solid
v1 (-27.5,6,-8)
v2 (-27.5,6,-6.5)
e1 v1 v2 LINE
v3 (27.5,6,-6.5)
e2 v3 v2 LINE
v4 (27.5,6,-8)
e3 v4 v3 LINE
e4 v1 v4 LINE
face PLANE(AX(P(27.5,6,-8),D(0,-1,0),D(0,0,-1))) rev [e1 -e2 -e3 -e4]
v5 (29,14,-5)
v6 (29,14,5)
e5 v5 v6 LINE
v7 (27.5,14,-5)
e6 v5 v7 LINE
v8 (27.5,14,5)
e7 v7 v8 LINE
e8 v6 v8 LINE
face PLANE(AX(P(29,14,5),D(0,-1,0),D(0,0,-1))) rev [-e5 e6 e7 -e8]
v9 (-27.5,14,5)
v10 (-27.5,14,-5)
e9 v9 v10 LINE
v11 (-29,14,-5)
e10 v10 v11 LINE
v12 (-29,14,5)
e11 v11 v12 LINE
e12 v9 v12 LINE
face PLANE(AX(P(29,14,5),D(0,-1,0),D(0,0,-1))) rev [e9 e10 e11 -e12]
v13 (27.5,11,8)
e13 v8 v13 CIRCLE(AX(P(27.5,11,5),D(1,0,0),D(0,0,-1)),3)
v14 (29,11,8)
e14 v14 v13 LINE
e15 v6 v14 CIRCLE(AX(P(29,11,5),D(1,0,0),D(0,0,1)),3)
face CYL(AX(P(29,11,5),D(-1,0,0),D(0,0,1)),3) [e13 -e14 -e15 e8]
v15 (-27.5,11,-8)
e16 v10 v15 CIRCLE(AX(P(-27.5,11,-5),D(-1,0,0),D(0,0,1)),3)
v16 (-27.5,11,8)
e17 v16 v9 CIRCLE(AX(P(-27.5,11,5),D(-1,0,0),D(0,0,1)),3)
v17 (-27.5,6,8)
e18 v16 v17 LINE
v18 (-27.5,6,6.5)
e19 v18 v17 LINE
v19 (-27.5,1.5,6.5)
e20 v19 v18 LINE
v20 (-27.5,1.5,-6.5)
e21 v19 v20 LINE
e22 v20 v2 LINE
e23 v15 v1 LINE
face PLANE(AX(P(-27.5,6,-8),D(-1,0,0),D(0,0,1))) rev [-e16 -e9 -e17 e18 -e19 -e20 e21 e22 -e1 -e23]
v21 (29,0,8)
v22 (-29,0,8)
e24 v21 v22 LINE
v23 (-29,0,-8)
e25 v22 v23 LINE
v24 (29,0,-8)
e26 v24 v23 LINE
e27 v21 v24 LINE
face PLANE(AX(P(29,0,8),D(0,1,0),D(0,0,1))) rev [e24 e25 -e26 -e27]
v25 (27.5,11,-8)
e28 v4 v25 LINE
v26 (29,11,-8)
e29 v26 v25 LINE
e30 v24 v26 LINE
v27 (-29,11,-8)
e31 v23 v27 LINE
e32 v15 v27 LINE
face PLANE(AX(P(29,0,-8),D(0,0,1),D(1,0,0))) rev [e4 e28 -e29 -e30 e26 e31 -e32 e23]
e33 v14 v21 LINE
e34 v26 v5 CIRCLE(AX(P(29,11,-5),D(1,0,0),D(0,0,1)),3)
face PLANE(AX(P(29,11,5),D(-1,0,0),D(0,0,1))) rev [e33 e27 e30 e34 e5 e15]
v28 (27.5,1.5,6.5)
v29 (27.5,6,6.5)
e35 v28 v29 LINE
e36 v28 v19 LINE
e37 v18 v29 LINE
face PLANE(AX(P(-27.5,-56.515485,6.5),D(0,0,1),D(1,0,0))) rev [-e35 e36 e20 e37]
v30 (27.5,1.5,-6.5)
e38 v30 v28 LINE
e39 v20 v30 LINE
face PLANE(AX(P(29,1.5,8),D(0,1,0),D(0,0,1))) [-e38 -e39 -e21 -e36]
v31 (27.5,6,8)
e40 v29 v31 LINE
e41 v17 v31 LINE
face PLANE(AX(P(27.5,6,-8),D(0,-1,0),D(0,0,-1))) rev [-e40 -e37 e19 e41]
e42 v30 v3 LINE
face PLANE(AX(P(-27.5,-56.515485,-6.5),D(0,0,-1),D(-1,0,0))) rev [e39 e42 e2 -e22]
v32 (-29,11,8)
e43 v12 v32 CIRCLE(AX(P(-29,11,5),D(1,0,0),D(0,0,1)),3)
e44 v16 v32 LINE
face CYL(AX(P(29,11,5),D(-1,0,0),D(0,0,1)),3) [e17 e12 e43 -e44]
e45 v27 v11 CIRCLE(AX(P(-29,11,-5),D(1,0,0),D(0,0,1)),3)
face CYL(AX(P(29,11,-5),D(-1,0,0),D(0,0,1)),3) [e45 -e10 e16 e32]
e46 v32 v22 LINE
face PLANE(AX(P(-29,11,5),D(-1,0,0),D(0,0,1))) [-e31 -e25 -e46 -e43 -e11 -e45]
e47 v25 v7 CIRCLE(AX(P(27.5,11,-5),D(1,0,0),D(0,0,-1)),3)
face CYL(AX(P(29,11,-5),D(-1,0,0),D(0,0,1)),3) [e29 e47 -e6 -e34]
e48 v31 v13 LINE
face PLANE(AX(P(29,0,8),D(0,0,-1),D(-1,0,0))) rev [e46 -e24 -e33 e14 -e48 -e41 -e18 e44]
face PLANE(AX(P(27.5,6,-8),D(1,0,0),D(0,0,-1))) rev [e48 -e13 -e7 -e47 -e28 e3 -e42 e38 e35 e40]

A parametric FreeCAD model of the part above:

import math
import FreeCAD as App
import Part
import Sketcher
from FreeCAD import Vector

doc = App.newDocument("Part")
params = doc.addObject("Spreadsheet::Sheet", "Params")
for row, (alias, value) in enumerate([
    ("sketch1_radius", "3 mm"),
    ("sketch1_width", "11 mm"),
    ("sketch1_height", "16 mm"),
    ("pad1_length", "58 mm"),
    ("sketch2_width", "55 mm"),
    ("sketch2_height", "16 mm"),
    ("sketch3_width", "55 mm"),
    ("sketch3_height", "13 mm"),
    ("pocket2_length", "4.5 mm"),
], start=1):
    params.set(f"A{row}", alias)
    params.set(f"B{row}", "=" + value)
    params.setAlias(f"B{row}", alias)

body = doc.addObject("PartDesign::Body", "Body")

sketch1 = doc.addObject("Sketcher::SketchObject", "Sketch")
body.addObject(sketch1)
sketch1.AttachmentSupport = (doc.YZ_Plane, [""])
sketch1.MapMode = "FlatFace"
sketch1.addGeometry(Part.LineSegment(Vector(0, 8, 0), Vector(0, -8, 0)), False)
sketch1.addGeometry(Part.LineSegment(Vector(0, -8, 0), Vector(11, -8, 0)), False)
sketch1.addGeometry(Part.ArcOfCircle(Part.Circle(Vector(11, -5, 0), Vector(0, 0, 1), 3), math.radians(-90), math.radians(0)), False)
sketch1.addGeometry(Part.LineSegment(Vector(14, -5, 0), Vector(14, 5, 0)), False)
sketch1.addGeometry(Part.ArcOfCircle(Part.Circle(Vector(11, 5, 0), Vector(0, 0, 1), 3), math.radians(0), math.radians(90)), False)
sketch1.addGeometry(Part.LineSegment(Vector(11, 8, 0), Vector(0, 8, 0)), False)
sketch1.addConstraint(Sketcher.Constraint("Coincident", 0, 2, 1, 1))
sketch1.addConstraint(Sketcher.Constraint("Tangent", 1, 2, 2, 1))
sketch1.addConstraint(Sketcher.Constraint("Tangent", 2, 2, 3, 1))
sketch1.addConstraint(Sketcher.Constraint("Tangent", 3, 2, 4, 1))
sketch1.addConstraint(Sketcher.Constraint("Tangent", 4, 2, 5, 1))
sketch1.addConstraint(Sketcher.Constraint("Coincident", 5, 2, 0, 1))
sketch1.addConstraint(Sketcher.Constraint("Vertical", 0))
sketch1.addConstraint(Sketcher.Constraint("Horizontal", 1))
sketch1.addConstraint(Sketcher.Constraint("Vertical", 3))
sketch1.addConstraint(Sketcher.Constraint("Horizontal", 5))
sketch1.addConstraint(Sketcher.Constraint("Equal", 2, 4))
sketch1.addConstraint(Sketcher.Constraint("Symmetric", 0, 2, 5, 2, -1, 1))
sketch1.addConstraint(Sketcher.Constraint("Radius", 2, 3.0))
sketch1.addConstraint(Sketcher.Constraint("DistanceX", 1, 1, 1, 2, 11.0))
sketch1.addConstraint(Sketcher.Constraint("DistanceY", 0, 2, 0, 1, 16.0))
sketch1.setExpression("Constraints[12]", "Params.sketch1_radius")
sketch1.setExpression("Constraints[13]", "Params.sketch1_width")
sketch1.setExpression("Constraints[14]", "Params.sketch1_height")
pad1 = doc.addObject("PartDesign::Pad", "Pad")
body.addObject(pad1)
pad1.Profile = sketch1
pad1.setExpression("Length", "Params.pad1_length")
pad1.Midplane = True

sketch2 = doc.addObject("Sketcher::SketchObject", "Sketch001")
body.addObject(sketch2)
sketch2.AttachmentSupport = (doc.XY_Plane, [""])
sketch2.MapMode = "FlatFace"
sketch2.addGeometry(Part.LineSegment(Vector(-28, 22, 0), Vector(-28, 6, 0)), False)
sketch2.addGeometry(Part.LineSegment(Vector(-28, 6, 0), Vector(28, 6, 0)), False)
sketch2.addGeometry(Part.LineSegment(Vector(28, 6, 0), Vector(28, 22, 0)), False)
sketch2.addGeometry(Part.LineSegment(Vector(28, 22, 0), Vector(-28, 22, 0)), False)
sketch2.addConstraint(Sketcher.Constraint("Coincident", 0, 2, 1, 1))
sketch2.addConstraint(Sketcher.Constraint("Coincident", 1, 2, 2, 1))
sketch2.addConstraint(Sketcher.Constraint("Coincident", 2, 2, 3, 1))
sketch2.addConstraint(Sketcher.Constraint("Coincident", 3, 2, 0, 1))
sketch2.addConstraint(Sketcher.Constraint("Vertical", 0))
sketch2.addConstraint(Sketcher.Constraint("Horizontal", 1))
sketch2.addConstraint(Sketcher.Constraint("Vertical", 2))
sketch2.addConstraint(Sketcher.Constraint("Horizontal", 3))
sketch2.addConstraint(Sketcher.Constraint("DistanceX", 1, 1, 1, 2, 55.0))
sketch2.addConstraint(Sketcher.Constraint("DistanceY", 0, 2, 0, 1, 16.0))
sketch2.addConstraint(Sketcher.Constraint("DistanceY", -1, 1, 0, 2, 6.0))
sketch2.addConstraint(Sketcher.Constraint("DistanceX", 0, 2, -1, 1, 27.5))
sketch2.setExpression("Constraints[8]", "Params.sketch2_width")
sketch2.setExpression("Constraints[9]", "Params.sketch2_height")
pocket1 = doc.addObject("PartDesign::Pocket", "Pocket")
body.addObject(pocket1)
pocket1.Profile = sketch2
pocket1.Type = "ThroughAll"
pocket1.Midplane = True

sketch3 = doc.addObject("Sketcher::SketchObject", "Sketch002")
body.addObject(sketch3)
sketch3.AttachmentSupport = (doc.XZ_Plane, [""])
sketch3.MapMode = "FlatFace"
sketch3.AttachmentOffset = App.Placement(Vector(0, 0, -6), App.Rotation())
sketch3.addGeometry(Part.LineSegment(Vector(-28, -6, 0), Vector(-28, 6, 0)), False)
sketch3.addGeometry(Part.LineSegment(Vector(-28, 6, 0), Vector(28, 6, 0)), False)
sketch3.addGeometry(Part.LineSegment(Vector(28, 6, 0), Vector(28, -6, 0)), False)
sketch3.addGeometry(Part.LineSegment(Vector(28, -6, 0), Vector(-28, -6, 0)), False)
sketch3.addConstraint(Sketcher.Constraint("Coincident", 0, 2, 1, 1))
sketch3.addConstraint(Sketcher.Constraint("Coincident", 1, 2, 2, 1))
sketch3.addConstraint(Sketcher.Constraint("Coincident", 2, 2, 3, 1))
sketch3.addConstraint(Sketcher.Constraint("Coincident", 3, 2, 0, 1))
sketch3.addConstraint(Sketcher.Constraint("Vertical", 0))
sketch3.addConstraint(Sketcher.Constraint("Horizontal", 1))
sketch3.addConstraint(Sketcher.Constraint("Vertical", 2))
sketch3.addConstraint(Sketcher.Constraint("Horizontal", 3))
sketch3.addConstraint(Sketcher.Constraint("Symmetric", 0, 2, 2, 2, -1, 1))
sketch3.addConstraint(Sketcher.Constraint("DistanceX", 1, 1, 1, 2, 55.0))
sketch3.addConstraint(Sketcher.Constraint("DistanceY", 0, 1, 0, 2, 13.0))
sketch3.setExpression("Constraints[9]", "Params.sketch3_width")
sketch3.setExpression("Constraints[10]", "Params.sketch3_height")
pocket2 = doc.addObject("PartDesign::Pocket", "Pocket001")
body.addObject(pocket2)
pocket2.Profile = sketch3
pocket2.setExpression("Length", "Params.pocket2_length")
pocket2.Reversed = True

doc.recompute()
